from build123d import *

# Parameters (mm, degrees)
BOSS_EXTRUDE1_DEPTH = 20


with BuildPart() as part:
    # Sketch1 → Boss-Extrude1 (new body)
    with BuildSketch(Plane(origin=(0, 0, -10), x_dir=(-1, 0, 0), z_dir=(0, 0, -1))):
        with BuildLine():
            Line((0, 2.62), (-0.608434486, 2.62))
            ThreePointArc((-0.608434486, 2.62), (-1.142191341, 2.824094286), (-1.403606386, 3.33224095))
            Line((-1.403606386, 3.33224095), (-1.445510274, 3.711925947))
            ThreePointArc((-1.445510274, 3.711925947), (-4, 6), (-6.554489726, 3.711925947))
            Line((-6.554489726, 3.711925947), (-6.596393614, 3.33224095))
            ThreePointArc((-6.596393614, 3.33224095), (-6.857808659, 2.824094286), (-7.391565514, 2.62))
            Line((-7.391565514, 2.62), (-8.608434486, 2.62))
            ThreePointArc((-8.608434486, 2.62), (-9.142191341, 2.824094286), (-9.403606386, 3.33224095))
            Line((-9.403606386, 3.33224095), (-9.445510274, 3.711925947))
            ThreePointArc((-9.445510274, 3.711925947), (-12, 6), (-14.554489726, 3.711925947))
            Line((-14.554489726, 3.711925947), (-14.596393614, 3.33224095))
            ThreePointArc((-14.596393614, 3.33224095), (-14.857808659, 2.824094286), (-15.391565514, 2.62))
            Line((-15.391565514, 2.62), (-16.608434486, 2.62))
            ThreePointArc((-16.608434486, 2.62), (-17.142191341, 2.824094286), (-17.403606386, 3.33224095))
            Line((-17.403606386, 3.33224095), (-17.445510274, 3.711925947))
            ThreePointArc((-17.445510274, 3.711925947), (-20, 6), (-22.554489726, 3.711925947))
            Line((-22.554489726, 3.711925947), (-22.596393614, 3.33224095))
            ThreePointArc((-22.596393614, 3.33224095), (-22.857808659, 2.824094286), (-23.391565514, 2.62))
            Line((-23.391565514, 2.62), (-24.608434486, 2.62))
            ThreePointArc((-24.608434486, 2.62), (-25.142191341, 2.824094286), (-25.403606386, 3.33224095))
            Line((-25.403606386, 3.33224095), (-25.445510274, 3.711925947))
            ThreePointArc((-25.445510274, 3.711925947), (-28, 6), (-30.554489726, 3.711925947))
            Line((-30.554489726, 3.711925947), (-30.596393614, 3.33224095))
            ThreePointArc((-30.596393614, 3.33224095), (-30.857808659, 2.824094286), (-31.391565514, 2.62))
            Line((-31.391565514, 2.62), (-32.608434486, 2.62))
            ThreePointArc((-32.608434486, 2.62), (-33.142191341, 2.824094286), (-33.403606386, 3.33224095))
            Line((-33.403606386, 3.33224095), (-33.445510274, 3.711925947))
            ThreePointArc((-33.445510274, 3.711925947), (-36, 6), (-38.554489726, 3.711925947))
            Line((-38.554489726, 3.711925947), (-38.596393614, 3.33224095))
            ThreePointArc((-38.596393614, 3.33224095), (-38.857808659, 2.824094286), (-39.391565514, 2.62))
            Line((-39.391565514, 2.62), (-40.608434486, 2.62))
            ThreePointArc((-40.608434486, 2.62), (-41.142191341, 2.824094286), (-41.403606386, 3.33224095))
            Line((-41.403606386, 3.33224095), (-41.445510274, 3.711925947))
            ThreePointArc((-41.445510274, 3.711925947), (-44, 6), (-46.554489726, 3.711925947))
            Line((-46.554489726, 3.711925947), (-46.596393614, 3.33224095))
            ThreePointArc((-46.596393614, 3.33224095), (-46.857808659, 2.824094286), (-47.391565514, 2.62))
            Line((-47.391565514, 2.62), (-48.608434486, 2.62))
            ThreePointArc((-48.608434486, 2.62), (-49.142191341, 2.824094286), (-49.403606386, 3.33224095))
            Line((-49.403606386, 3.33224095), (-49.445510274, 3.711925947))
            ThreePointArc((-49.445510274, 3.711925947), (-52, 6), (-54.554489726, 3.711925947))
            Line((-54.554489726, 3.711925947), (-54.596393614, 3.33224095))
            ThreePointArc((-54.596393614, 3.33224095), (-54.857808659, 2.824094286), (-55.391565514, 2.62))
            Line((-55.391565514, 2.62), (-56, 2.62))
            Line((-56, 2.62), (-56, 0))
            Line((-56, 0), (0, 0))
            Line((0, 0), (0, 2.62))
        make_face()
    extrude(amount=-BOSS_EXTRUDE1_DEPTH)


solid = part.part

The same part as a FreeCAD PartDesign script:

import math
import FreeCAD as App
import Part
import Sketcher
from FreeCAD import Vector

doc = App.newDocument("Part")
body = doc.addObject("PartDesign::Body", "Body")

# Sketch on XY plane
sketch1 = body.newObject("Sketcher::SketchObject", "Sketch")
sketch1.AttachmentSupport = (doc.getObject("XY_Plane"), [""])
sketch1.MapMode = "FlatFace"
sketch1.AttachmentOffset = App.Placement(Vector(0, 0, -10), App.Rotation())
sketch1.addGeometry([
    Part.LineSegment(Vector(0, 2.62, 0), Vector(0.61, 2.62, 0)),  # 0
    Part.ArcOfCircle(Part.Circle(Vector(0.61, 3.42, 0), Vector(0, 0, 1), 0.8), math.radians(-90), math.radians(-6)),  # 1
    Part.LineSegment(Vector(1.4, 3.33, 0), Vector(1.45, 3.71, 0)),  # 2
    Part.ArcOfCircle(Part.Circle(Vector(4, 3.43, 0), Vector(0, 0, 1), 2.57), math.radians(6), math.radians(174)),  # 3
    Part.LineSegment(Vector(6.55, 3.71, 0), Vector(6.6, 3.33, 0)),  # 4
    Part.ArcOfCircle(Part.Circle(Vector(7.39, 3.42, 0), Vector(0, 0, 1), 0.8), math.radians(-174), math.radians(-90)),  # 5
    Part.LineSegment(Vector(7.39, 2.62, 0), Vector(8.61, 2.62, 0)),  # 6
    Part.ArcOfCircle(Part.Circle(Vector(8.61, 3.42, 0), Vector(0, 0, 1), 0.8), math.radians(-90), math.radians(-6)),  # 7
    Part.LineSegment(Vector(9.4, 3.33, 0), Vector(9.45, 3.71, 0)),  # 8
    Part.ArcOfCircle(Part.Circle(Vector(12, 3.43, 0), Vector(0, 0, 1), 2.57), math.radians(6), math.radians(174)),  # 9
    Part.LineSegment(Vector(14.55, 3.71, 0), Vector(14.6, 3.33, 0)),  # 10
    Part.ArcOfCircle(Part.Circle(Vector(15.39, 3.42, 0), Vector(0, 0, 1), 0.8), math.radians(-174), math.radians(-90)),  # 11
    Part.LineSegment(Vector(15.39, 2.62, 0), Vector(16.61, 2.62, 0)),  # 12
    Part.ArcOfCircle(Part.Circle(Vector(16.61, 3.42, 0), Vector(0, 0, 1), 0.8), math.radians(-90), math.radians(-6)),  # 13
    Part.LineSegment(Vector(17.4, 3.33, 0), Vector(17.45, 3.71, 0)),  # 14
    Part.ArcOfCircle(Part.Circle(Vector(20, 3.43, 0), Vector(0, 0, 1), 2.57), math.radians(6), math.radians(174)),  # 15
    Part.LineSegment(Vector(22.55, 3.71, 0), Vector(22.6, 3.33, 0)),  # 16
    Part.ArcOfCircle(Part.Circle(Vector(23.39, 3.42, 0), Vector(0, 0, 1), 0.8), math.radians(-174), math.radians(-90)),  # 17
    Part.LineSegment(Vector(23.39, 2.62, 0), Vector(24.61, 2.62, 0)),  # 18
    Part.ArcOfCircle(Part.Circle(Vector(24.61, 3.42, 0), Vector(0, 0, 1), 0.8), math.radians(-90), math.radians(-6)),  # 19
    Part.LineSegment(Vector(25.4, 3.33, 0), Vector(25.45, 3.71, 0)),  # 20
    Part.ArcOfCircle(Part.Circle(Vector(28, 3.43, 0), Vector(0, 0, 1), 2.57), math.radians(6), math.radians(174)),  # 21
    Part.LineSegment(Vector(30.55, 3.71, 0), Vector(30.6, 3.33, 0)),  # 22
    Part.ArcOfCircle(Part.Circle(Vector(31.39, 3.42, 0), Vector(0, 0, 1), 0.8), math.radians(-174), math.radians(-90)),  # 23
    Part.LineSegment(Vector(31.39, 2.62, 0), Vector(32.61, 2.62, 0)),  # 24
    Part.ArcOfCircle(Part.Circle(Vector(32.61, 3.42, 0), Vector(0, 0, 1), 0.8), math.radians(-90), math.radians(-6)),  # 25
    Part.LineSegment(Vector(33.4, 3.33, 0), Vector(33.45, 3.71, 0)),  # 26
    Part.ArcOfCircle(Part.Circle(Vector(36, 3.43, 0), Vector(0, 0, 1), 2.57), math.radians(6), math.radians(174)),  # 27
    Part.LineSegment(Vector(38.55, 3.71, 0), Vector(38.6, 3.33, 0)),  # 28
    Part.ArcOfCircle(Part.Circle(Vector(39.39, 3.42, 0), Vector(0, 0, 1), 0.8), math.radians(-174), math.radians(-90)),  # 29
    Part.LineSegment(Vector(39.39, 2.62, 0), Vector(40.61, 2.62, 0)),  # 30
    Part.ArcOfCircle(Part.Circle(Vector(40.61, 3.42, 0), Vector(0, 0, 1), 0.8), math.radians(-90), math.radians(-6)),  # 31
    Part.LineSegment(Vector(41.4, 3.33, 0), Vector(41.45, 3.71, 0)),  # 32
    Part.ArcOfCircle(Part.Circle(Vector(44, 3.43, 0), Vector(0, 0, 1), 2.57), math.radians(6), math.radians(174)),  # 33
    Part.LineSegment(Vector(46.55, 3.71, 0), Vector(46.6, 3.33, 0)),  # 34
    Part.ArcOfCircle(Part.Circle(Vector(47.39, 3.42, 0), Vector(0, 0, 1), 0.8), math.radians(-174), math.radians(-90)),  # 35
    Part.LineSegment(Vector(47.39, 2.62, 0), Vector(48.61, 2.62, 0)),  # 36
    Part.ArcOfCircle(Part.Circle(Vector(48.61, 3.42, 0), Vector(0, 0, 1), 0.8), math.radians(-90), math.radians(-6)),  # 37
    Part.LineSegment(Vector(49.4, 3.33, 0), Vector(49.45, 3.71, 0)),  # 38
    Part.ArcOfCircle(Part.Circle(Vector(52, 3.43, 0), Vector(0, 0, 1), 2.57), math.radians(6), math.radians(174)),  # 39
    Part.LineSegment(Vector(54.55, 3.71, 0), Vector(54.6, 3.33, 0)),  # 40
    Part.ArcOfCircle(Part.Circle(Vector(55.39, 3.42, 0), Vector(0, 0, 1), 0.8), math.radians(-174), math.radians(-90)),  # 41
    Part.LineSegment(Vector(55.39, 2.62, 0), Vector(56, 2.62, 0)),  # 42
    Part.LineSegment(Vector(56, 2.62, 0), Vector(56, 0, 0)),  # 43
    Part.LineSegment(Vector(56, 0, 0), Vector(0, 0, 0)),  # 44
    Part.LineSegment(Vector(0, 0, 0), Vector(0, 2.62, 0)),  # 45
], False)
sketch1.addConstraint([
    Sketcher.Constraint("Tangent", 0, 2, 1, 1),
    Sketcher.Constraint("Tangent", 1, 2, 2, 1),
    Sketcher.Constraint("Tangent", 2, 2, 3, 2),
    Sketcher.Constraint("Tangent", 3, 1, 4, 1),
    Sketcher.Constraint("Tangent", 4, 2, 5, 1),
    Sketcher.Constraint("Tangent", 5, 2, 6, 1),
    Sketcher.Constraint("Tangent", 6, 2, 7, 1),
    Sketcher.Constraint("Tangent", 7, 2, 8, 1),
    Sketcher.Constraint("Tangent", 8, 2, 9, 2),
    Sketcher.Constraint("Tangent", 9, 1, 10, 1),
    Sketcher.Constraint("Tangent", 10, 2, 11, 1),
    Sketcher.Constraint("Tangent", 11, 2, 12, 1),
    Sketcher.Constraint("Tangent", 12, 2, 13, 1),
    Sketcher.Constraint("Tangent", 13, 2, 14, 1),
    Sketcher.Constraint("Tangent", 14, 2, 15, 2),
    Sketcher.Constraint("Tangent", 15, 1, 16, 1),
    Sketcher.Constraint("Tangent", 16, 2, 17, 1),
    Sketcher.Constraint("Tangent", 17, 2, 18, 1),
    Sketcher.Constraint("Tangent", 18, 2, 19, 1),
    Sketcher.Constraint("Tangent", 19, 2, 20, 1),
    Sketcher.Constraint("Tangent", 20, 2, 21, 2),
    Sketcher.Constraint("Tangent", 21, 1, 22, 1),
    Sketcher.Constraint("Tangent", 22, 2, 23, 1),
    Sketcher.Constraint("Tangent", 23, 2, 24, 1),
    Sketcher.Constraint("Tangent", 24, 2, 25, 1),
    Sketcher.Constraint("Tangent", 25, 2, 26, 1),
    Sketcher.Constraint("Tangent", 26, 2, 27, 2),
    Sketcher.Constraint("Tangent", 27, 1, 28, 1),
    Sketcher.Constraint("Tangent", 28, 2, 29, 1),
    Sketcher.Constraint("Tangent", 29, 2, 30, 1),
    Sketcher.Constraint("Tangent", 30, 2, 31, 1),
    Sketcher.Constraint("Tangent", 31, 2, 32, 1),
    Sketcher.Constraint("Tangent", 32, 2, 33, 2),
    Sketcher.Constraint("Tangent", 33, 1, 34, 1),
    Sketcher.Constraint("Tangent", 34, 2, 35, 1),
    Sketcher.Constraint("Tangent", 35, 2, 36, 1),
    Sketcher.Constraint("Tangent", 36, 2, 37, 1),
    Sketcher.Constraint("Tangent", 37, 2, 38, 1),
    Sketcher.Constraint("Tangent", 38, 2, 39, 2),
    Sketcher.Constraint("Tangent", 39, 1, 40, 1),
    Sketcher.Constraint("Tangent", 40, 2, 41, 1),
    Sketcher.Constraint("Tangent", 41, 2, 42, 1),
    Sketcher.Constraint("Coincident", 42, 2, 43, 1),
    Sketcher.Constraint("Coincident", 43, 2, 44, 1),
    Sketcher.Constraint("Coincident", 44, 2, 45, 1),
    Sketcher.Constraint("Coincident", 45, 2, 0, 1),
    Sketcher.Constraint("Horizontal", 0),
    Sketcher.Constraint("Horizontal", 6),
    Sketcher.Constraint("Horizontal", 12),
    Sketcher.Constraint("Horizontal", 18),
    Sketcher.Constraint("Horizontal", 24),
    Sketcher.Constraint("Horizontal", 30),
    Sketcher.Constraint("Horizontal", 36),
    Sketcher.Constraint("Horizontal", 42),
    Sketcher.Constraint("Vertical", 43),
    Sketcher.Constraint("Horizontal", 44),
    Sketcher.Constraint("Vertical", 45),
    Sketcher.Constraint("Coincident", 44, 2, -1, 1),
    Sketcher.Constraint("Equal", 1, 5),
    Sketcher.Constraint("Equal", 5, 7),
    Sketcher.Constraint("Equal", 3, 9),
    Sketcher.Constraint("Equal", 7, 11),
    Sketcher.Constraint("Equal", 11, 13),
    Sketcher.Constraint("Equal", 9, 15),
    Sketcher.Constraint("Equal", 13, 17),
    Sketcher.Constraint("Equal", 17, 19),
    Sketcher.Constraint("Equal", 15, 21),
    Sketcher.Constraint("Equal", 19, 23),
    Sketcher.Constraint("Equal", 23, 25),
    Sketcher.Constraint("Equal", 21, 27),
    Sketcher.Constraint("Equal", 25, 29),
    Sketcher.Constraint("Equal", 29, 31),
    Sketcher.Constraint("Equal", 27, 33),
    Sketcher.Constraint("Equal", 31, 35),
    Sketcher.Constraint("Equal", 35, 37),
    Sketcher.Constraint("Equal", 33, 39),
    Sketcher.Constraint("Equal", 37, 41),
    Sketcher.Constraint("Parallel", 2, 8),
    Sketcher.Constraint("Parallel", 4, 10),
    Sketcher.Constraint("Parallel", 8, 14),
    Sketcher.Constraint("Parallel", 10, 16),
    Sketcher.Constraint("Parallel", 14, 20),
    Sketcher.Constraint("Parallel", 16, 22),
    Sketcher.Constraint("Parallel", 20, 26),
    Sketcher.Constraint("Parallel", 22, 28),
    Sketcher.Constraint("Parallel", 26, 32),
    Sketcher.Constraint("Parallel", 28, 34),
    Sketcher.Constraint("Parallel", 32, 38),
    Sketcher.Constraint("Parallel", 34, 40),
    Sketcher.Constraint("Horizontal", 1, 3, 5, 3),
    Sketcher.Constraint("Horizontal", 3, 3, 9, 3),
    Sketcher.Constraint("Horizontal", 7, 3, 11, 3),
    Sketcher.Constraint("Horizontal", 9, 3, 15, 3),
    Sketcher.Constraint("Horizontal", 13, 3, 17, 3),
    Sketcher.Constraint("Horizontal", 15, 3, 21, 3),
    Sketcher.Constraint("Horizontal", 19, 3, 23, 3),
    Sketcher.Constraint("Horizontal", 21, 3, 27, 3),
    Sketcher.Constraint("Horizontal", 25, 3, 29, 3),
    Sketcher.Constraint("Horizontal", 27, 3, 33, 3),
    Sketcher.Constraint("Horizontal", 31, 3, 35, 3),
    Sketcher.Constraint("Horizontal", 33, 3, 39, 3),
    Sketcher.Constraint("Horizontal", 37, 3, 41, 3),
    Sketcher.Constraint("Horizontal", 2, 2, 3, 1),
    Sketcher.Constraint("Equal", 6, 12),
    Sketcher.Constraint("Equal", 12, 18),
    Sketcher.Constraint("Equal", 18, 24),
    Sketcher.Constraint("Equal", 24, 30),
    Sketcher.Constraint("Equal", 30, 36),
    Sketcher.Constraint("Equal", 0, 42),
    Sketcher.Constraint("Radius", 1, 0.8),
    Sketcher.Constraint("DistanceX", 44, 2, 44, 1, 56.0),
    Sketcher.Constraint("Radius", 3, 2.57),
    Sketcher.Constraint("DistanceX", -1, 1, 3, 3, 4.0),
    Sketcher.Constraint("DistanceY", 43, 2, 43, 1, 2.62),
    Sketcher.Constraint("DistanceY", -1, 1, 3, 3, 3.43),
    Sketcher.Constraint("DistanceX", 6, 1, 6, 2, 1.216869),
])
pad1 = body.newObject("PartDesign::Pad", "Pad")
pad1.Profile = sketch1
pad1.Length = 20

doc.recompute()
